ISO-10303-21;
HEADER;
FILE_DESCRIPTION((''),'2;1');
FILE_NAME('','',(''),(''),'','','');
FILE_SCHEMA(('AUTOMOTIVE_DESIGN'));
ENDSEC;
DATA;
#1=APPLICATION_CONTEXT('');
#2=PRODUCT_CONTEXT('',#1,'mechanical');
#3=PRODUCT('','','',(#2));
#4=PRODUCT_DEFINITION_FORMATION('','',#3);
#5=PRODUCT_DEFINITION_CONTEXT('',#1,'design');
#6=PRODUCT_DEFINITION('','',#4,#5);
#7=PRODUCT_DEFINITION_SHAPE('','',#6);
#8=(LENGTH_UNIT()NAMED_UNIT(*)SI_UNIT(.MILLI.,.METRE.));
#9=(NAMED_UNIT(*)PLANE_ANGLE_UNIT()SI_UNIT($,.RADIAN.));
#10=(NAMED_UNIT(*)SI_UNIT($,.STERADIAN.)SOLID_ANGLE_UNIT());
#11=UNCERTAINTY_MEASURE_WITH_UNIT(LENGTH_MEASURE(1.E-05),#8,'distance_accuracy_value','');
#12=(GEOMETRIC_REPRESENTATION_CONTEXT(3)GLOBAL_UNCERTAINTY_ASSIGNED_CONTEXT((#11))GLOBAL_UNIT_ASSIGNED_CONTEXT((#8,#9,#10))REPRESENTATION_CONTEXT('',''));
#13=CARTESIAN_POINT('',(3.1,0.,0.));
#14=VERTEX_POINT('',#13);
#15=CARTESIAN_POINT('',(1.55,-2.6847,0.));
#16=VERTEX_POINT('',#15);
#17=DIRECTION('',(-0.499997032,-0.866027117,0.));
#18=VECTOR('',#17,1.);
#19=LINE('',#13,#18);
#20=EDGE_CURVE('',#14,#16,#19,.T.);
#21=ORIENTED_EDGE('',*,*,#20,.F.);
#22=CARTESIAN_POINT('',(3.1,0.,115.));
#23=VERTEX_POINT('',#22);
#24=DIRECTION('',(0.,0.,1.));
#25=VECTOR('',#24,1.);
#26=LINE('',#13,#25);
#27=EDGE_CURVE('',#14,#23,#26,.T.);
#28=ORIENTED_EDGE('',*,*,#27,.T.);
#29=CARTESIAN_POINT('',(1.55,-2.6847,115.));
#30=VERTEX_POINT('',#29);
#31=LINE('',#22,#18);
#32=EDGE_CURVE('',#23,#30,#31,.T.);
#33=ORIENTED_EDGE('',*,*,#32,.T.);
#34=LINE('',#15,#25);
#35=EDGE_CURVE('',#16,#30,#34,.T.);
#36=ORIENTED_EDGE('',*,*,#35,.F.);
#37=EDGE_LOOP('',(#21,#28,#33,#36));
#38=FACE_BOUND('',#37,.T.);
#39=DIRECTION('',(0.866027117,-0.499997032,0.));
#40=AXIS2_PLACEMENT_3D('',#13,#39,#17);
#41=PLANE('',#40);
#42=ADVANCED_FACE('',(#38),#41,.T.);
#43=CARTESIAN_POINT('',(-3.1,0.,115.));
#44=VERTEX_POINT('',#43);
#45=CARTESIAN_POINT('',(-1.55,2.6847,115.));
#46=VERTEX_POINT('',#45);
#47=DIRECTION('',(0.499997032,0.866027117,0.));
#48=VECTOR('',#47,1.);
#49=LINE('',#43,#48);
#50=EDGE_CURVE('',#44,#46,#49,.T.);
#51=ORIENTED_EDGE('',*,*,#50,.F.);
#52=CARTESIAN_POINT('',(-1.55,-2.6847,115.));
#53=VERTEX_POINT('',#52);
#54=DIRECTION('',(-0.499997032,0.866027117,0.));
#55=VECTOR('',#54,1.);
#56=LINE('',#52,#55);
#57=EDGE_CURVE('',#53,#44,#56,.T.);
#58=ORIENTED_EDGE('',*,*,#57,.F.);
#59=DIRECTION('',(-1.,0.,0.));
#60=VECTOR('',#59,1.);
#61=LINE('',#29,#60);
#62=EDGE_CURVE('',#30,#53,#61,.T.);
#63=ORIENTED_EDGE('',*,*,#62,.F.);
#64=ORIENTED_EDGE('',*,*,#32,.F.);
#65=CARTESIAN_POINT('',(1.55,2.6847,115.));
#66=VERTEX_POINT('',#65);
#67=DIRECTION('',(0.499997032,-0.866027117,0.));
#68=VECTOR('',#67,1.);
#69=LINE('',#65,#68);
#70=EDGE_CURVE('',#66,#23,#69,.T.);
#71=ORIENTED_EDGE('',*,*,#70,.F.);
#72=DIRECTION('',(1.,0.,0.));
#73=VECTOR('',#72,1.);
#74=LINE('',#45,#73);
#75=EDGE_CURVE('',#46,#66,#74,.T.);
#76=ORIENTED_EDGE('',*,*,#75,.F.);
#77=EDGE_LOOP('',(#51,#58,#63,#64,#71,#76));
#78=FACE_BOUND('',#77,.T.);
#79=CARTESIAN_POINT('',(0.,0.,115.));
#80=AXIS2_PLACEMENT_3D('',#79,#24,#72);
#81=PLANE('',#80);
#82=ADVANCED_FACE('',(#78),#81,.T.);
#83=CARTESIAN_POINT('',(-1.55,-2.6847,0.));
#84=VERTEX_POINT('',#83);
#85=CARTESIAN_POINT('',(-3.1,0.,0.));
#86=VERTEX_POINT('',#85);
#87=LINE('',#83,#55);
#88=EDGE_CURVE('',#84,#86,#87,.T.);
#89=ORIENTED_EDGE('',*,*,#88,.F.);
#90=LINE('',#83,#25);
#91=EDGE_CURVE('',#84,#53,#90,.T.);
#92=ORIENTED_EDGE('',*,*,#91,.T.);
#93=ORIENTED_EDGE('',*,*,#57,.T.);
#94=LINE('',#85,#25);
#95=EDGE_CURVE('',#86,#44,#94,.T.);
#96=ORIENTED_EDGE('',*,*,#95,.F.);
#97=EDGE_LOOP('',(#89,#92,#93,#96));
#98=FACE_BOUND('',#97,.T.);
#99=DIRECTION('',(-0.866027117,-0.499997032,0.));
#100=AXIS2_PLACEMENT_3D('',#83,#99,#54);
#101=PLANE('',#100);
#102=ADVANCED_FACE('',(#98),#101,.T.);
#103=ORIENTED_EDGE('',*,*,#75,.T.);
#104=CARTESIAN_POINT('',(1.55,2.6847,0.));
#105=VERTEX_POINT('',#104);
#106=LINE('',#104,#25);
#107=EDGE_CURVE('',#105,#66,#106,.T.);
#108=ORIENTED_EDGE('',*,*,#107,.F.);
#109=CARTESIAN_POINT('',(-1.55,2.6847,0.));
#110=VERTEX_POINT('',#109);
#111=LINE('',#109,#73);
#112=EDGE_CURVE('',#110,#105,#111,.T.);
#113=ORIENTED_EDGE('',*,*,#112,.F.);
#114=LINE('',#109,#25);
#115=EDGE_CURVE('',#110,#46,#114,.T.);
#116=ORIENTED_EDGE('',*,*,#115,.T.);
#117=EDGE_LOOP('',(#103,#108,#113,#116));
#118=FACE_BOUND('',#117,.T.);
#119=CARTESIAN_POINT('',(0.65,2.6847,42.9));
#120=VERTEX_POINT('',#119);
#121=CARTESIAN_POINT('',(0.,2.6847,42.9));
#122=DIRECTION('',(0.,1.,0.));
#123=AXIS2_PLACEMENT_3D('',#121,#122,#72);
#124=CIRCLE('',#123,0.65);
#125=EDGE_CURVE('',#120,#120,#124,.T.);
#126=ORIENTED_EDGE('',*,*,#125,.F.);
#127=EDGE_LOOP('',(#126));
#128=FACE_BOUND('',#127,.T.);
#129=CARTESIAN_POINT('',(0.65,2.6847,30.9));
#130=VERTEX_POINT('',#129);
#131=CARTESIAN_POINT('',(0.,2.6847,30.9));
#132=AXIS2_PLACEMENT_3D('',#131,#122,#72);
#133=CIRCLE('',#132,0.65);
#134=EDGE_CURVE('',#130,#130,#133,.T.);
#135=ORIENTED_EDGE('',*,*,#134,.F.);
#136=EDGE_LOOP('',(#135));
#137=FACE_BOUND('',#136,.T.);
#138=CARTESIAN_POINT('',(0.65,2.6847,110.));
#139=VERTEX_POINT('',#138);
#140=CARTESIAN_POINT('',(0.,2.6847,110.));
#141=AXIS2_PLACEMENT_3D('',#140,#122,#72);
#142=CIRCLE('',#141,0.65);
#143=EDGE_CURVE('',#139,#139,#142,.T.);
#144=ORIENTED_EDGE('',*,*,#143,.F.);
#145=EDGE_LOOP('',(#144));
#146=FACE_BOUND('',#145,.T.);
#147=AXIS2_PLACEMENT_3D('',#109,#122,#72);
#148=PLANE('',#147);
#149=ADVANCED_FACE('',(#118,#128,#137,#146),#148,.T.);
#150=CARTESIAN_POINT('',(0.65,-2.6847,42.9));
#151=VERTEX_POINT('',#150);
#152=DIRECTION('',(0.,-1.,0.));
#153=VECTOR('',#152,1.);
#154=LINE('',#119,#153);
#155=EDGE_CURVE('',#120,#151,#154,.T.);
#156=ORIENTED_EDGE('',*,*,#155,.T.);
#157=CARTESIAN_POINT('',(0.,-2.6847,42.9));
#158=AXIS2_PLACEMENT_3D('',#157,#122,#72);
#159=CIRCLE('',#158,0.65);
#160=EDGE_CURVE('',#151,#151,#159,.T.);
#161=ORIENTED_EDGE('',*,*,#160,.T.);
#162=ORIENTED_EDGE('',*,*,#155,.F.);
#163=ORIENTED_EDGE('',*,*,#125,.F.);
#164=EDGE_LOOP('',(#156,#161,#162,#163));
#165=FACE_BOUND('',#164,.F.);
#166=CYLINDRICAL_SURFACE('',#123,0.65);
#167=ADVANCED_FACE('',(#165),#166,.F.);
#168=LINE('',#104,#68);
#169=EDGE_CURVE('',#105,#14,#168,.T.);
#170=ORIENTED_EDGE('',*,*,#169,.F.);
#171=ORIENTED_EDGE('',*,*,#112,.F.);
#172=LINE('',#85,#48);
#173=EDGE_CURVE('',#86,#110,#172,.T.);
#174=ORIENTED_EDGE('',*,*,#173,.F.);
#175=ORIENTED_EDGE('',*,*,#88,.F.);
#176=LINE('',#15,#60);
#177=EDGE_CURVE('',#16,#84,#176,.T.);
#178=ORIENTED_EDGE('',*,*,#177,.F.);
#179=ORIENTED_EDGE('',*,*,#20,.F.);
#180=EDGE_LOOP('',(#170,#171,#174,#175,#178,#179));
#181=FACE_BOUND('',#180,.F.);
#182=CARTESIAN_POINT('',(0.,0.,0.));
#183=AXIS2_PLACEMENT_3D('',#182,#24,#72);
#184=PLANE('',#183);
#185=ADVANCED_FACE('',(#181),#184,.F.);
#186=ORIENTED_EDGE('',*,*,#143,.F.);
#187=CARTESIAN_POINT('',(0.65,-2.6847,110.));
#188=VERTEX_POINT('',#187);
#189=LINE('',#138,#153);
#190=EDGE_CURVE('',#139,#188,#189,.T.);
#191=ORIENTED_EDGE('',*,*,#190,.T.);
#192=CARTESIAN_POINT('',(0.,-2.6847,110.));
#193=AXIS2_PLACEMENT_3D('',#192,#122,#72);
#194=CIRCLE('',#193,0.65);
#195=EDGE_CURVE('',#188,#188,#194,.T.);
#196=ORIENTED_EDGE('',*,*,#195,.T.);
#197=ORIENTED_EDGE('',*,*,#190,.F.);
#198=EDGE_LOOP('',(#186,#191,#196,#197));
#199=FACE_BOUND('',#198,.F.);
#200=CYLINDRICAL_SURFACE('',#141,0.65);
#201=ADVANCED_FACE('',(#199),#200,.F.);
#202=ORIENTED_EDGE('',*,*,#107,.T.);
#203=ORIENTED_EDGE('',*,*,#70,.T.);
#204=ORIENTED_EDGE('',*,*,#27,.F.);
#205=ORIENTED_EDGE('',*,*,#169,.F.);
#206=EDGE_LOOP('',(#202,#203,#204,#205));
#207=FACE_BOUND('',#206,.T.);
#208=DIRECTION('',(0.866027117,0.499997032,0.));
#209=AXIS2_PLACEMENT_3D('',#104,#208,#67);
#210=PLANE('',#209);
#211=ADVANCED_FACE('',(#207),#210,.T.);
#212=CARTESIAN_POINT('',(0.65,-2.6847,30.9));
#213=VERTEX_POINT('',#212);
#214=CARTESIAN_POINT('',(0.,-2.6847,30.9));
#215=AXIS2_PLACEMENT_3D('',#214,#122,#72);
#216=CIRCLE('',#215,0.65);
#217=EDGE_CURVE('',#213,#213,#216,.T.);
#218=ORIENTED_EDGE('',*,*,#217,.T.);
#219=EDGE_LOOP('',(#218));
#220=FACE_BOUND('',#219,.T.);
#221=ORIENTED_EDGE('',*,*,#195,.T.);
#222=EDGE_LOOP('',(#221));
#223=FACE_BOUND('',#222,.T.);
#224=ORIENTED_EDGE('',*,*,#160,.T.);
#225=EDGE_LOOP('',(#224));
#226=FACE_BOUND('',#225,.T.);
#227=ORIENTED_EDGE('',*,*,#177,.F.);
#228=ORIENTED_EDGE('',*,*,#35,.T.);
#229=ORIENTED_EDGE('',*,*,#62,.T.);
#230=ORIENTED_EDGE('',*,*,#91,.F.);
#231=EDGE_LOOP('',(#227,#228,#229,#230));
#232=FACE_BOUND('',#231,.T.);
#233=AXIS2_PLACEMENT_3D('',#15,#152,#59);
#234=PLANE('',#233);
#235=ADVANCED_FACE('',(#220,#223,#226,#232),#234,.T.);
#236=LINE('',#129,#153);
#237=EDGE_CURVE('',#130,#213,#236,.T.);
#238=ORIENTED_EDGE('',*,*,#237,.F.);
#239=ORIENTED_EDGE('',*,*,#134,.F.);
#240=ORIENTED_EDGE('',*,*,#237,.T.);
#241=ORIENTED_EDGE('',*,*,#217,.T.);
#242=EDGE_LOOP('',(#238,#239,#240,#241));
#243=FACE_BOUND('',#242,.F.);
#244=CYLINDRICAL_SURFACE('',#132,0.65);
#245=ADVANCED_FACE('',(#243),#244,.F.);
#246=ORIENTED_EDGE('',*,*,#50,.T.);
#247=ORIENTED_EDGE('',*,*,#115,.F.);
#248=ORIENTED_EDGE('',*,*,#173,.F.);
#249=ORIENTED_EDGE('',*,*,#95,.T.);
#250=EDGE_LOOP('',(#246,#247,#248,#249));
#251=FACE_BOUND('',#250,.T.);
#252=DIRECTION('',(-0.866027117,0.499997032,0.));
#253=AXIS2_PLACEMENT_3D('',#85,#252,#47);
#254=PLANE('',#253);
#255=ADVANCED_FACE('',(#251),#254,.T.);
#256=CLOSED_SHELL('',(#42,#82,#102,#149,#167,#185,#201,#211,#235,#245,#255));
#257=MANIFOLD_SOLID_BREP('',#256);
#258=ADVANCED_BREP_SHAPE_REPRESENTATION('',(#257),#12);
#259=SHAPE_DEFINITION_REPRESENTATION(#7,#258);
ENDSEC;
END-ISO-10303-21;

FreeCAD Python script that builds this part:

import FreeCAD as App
import Part
import Sketcher
Q = App.Units.Quantity


def add_polygon(sketch, points):
    """Adds a closed chain of lines whose ends are joined by coincident constraints."""
    first, n = sketch.GeometryCount, len(points)
    for a, b in zip(points, points[1:] + points[:1]):
        sketch.addGeometry(Part.LineSegment(App.Vector(*a, 0), App.Vector(*b, 0)), False)
    for i in range(n):
        sketch.addConstraint(Sketcher.Constraint("Coincident", first + i, 2, first + (i + 1) % n, 1))

doc = App.newDocument("Part")
body = doc.addObject("PartDesign::Body", "Body")

sketch1 = body.newObject("Sketcher::SketchObject", "Sketch")
sketch1.AttachmentSupport = (doc.getObject("XY_Plane"), [""])
sketch1.MapMode = "FlatFace"
add_polygon(sketch1, [(1.55, 2.6847), (-1.55, 2.6847), (-3.1, 0), (-1.55, -2.6847), (1.55, -2.6847), (3.1, 0)])
sketch1.addConstraint([
    Sketcher.Constraint("Horizontal", 0),
    Sketcher.Constraint("Horizontal", 3),
    Sketcher.Constraint("Symmetric", 0, 2, 3, 2, -1, 1),
    Sketcher.Constraint("Symmetric", 1, 2, 4, 2, -1, 1),
    Sketcher.Constraint("PointOnObject", 1, 2, -1),
    Sketcher.Constraint("Parallel", 2, 5),
    Sketcher.Constraint("Vertical", 0, 2, 2, 2),
    Sketcher.Constraint("DistanceX", 0, 2, 0, 1, Q("3.1 mm")),
    Sketcher.Constraint("Distance", 1, Q("3.1 mm")),
    Sketcher.Constraint("DistanceX", 1, 2, -1, 1, Q("3.1 mm")),
])
pad1 = body.newObject("PartDesign::Pad", "Pad")
pad1.Profile = sketch1
pad1.Length = 115

sketch2 = body.newObject("Sketcher::SketchObject", "Sketch001")
sketch2.AttachmentSupport = (doc.getObject("XZ_Plane"), [""])
sketch2.MapMode = "FlatFace"
sketch2.AttachmentOffset = App.Placement(App.Vector(0, 0, -2.6847), App.Rotation())
sketch2.addGeometry([
    Part.Circle(App.Vector(0, 30.9, 0), App.Vector(0, 0, 1), 0.65),
    Part.Circle(App.Vector(0, 42.9, 0), App.Vector(0, 0, 1), 0.65),
    Part.Circle(App.Vector(0, 110, 0), App.Vector(0, 0, 1), 0.65),
], False)
sketch2.addConstraint([
    Sketcher.Constraint("Equal", 0, 1),
    Sketcher.Constraint("Equal", 1, 2),
    Sketcher.Constraint("PointOnObject", 0, 3, -2),
    Sketcher.Constraint("PointOnObject", 1, 3, -2),
    Sketcher.Constraint("PointOnObject", 2, 3, -2),
    Sketcher.Constraint("Diameter", 0, Q("1.3 mm")),
    Sketcher.Constraint("DistanceY", -1, 1, 2, 3, Q("110 mm")),
    Sketcher.Constraint("DistanceY", 0, 3, 1, 3, Q("12 mm")),
    Sketcher.Constraint("DistanceY", -1, 1, 0, 3, Q("30.9 mm")),
])
pocket1 = body.newObject("PartDesign::Pocket", "Pocket")
pocket1.Profile = sketch2
pocket1.Length = 6
pocket1.Reversed = True

doc.recompute()
